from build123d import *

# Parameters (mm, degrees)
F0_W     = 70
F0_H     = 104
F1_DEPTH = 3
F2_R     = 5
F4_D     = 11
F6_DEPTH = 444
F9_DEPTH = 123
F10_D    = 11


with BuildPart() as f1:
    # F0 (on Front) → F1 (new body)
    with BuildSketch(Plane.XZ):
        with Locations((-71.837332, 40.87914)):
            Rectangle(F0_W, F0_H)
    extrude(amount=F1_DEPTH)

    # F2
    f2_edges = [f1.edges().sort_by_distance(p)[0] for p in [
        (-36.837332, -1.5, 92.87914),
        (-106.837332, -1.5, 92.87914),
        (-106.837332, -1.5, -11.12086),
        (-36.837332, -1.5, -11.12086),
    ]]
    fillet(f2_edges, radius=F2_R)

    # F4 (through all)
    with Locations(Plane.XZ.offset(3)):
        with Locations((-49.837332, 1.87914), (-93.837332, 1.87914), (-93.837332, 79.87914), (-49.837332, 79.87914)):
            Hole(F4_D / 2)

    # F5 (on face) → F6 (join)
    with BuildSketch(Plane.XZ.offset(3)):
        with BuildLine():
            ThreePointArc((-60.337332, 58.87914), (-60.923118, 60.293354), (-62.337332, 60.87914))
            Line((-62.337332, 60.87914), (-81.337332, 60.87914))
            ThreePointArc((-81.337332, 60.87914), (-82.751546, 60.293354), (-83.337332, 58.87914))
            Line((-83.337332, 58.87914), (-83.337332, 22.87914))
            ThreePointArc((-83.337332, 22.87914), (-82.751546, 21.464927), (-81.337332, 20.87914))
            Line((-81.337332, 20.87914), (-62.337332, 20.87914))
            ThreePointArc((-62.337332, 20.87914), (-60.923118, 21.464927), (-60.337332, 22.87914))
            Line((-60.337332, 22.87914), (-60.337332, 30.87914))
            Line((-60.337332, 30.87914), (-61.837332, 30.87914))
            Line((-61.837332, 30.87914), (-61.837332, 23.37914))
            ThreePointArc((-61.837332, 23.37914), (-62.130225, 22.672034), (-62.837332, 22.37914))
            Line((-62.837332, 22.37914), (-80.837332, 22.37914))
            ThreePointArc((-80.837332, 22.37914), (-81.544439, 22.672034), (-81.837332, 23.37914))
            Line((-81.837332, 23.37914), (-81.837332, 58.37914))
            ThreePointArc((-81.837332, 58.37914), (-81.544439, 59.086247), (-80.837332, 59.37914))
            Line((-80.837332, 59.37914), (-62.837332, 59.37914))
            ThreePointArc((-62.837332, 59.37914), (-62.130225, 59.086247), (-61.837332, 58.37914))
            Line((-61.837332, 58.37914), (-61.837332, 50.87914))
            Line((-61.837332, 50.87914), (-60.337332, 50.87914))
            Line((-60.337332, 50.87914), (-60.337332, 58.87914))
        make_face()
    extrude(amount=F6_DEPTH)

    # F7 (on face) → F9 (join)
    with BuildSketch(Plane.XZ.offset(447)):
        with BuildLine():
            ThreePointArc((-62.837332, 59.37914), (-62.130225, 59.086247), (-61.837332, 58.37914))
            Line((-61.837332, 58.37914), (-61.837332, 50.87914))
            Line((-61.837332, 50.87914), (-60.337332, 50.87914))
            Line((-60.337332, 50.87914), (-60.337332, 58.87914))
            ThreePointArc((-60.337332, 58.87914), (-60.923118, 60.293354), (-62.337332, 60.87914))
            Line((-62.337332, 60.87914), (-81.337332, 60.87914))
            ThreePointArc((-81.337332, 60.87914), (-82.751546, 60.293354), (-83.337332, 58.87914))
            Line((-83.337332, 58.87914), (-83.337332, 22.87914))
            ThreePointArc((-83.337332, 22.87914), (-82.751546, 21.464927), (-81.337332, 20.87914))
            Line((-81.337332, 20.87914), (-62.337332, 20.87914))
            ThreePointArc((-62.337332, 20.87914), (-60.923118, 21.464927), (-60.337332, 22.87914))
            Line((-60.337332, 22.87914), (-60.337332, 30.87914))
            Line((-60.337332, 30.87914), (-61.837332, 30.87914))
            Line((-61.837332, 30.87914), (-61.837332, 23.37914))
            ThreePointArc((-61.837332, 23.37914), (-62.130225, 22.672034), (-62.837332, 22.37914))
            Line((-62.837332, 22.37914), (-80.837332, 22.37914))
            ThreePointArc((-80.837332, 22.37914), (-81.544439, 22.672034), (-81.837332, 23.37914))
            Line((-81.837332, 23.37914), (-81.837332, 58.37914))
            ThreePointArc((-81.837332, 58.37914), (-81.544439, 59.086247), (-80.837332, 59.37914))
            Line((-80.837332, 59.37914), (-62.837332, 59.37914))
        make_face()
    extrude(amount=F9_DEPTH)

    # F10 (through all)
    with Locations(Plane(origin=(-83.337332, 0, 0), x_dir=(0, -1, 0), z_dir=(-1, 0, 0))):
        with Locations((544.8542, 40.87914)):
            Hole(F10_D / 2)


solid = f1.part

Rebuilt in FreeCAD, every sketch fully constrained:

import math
import FreeCAD as App
import Part
import Sketcher
from FreeCAD import Vector
Q = App.Units.Quantity


def edges_at(feature, points):
    """Names of the edges that pass closest to the given points."""
    edges = feature.Shape.Edges
    near = lambda p: min(range(len(edges)), key=lambda i: edges[i].distToShape(Part.Vertex(*p))[0])
    return sorted({f"Edge{near(p) + 1}" for p in points})

doc = App.newDocument("Part")
params = doc.addObject("Spreadsheet::Sheet", "Params")
for row, (alias, value) in enumerate([
    ("sketch1_width", "70 mm"),
    ("sketch1_height", "104 mm"),
    ("pad1_length", "3 mm"),
    ("fillet_radius", "5 mm"),
    ("sketch2_diameter", "11 mm"),
    ("hole_diameter", "11 mm"),
    ("sketch3_radius", "1.999999 mm"),
    ("sketch3_radius2", "1.000001 mm"),
    ("sketch3_width", "19 mm"),
    ("sketch3_width2", "18 mm"),
    ("sketch3_height", "36 mm"),
    ("pad2_length", "444 mm"),
    ("sketch4_radius", "0.999999 mm"),
    ("sketch4_radius2", "1.999999 mm"),
    ("sketch4_width", "19 mm"),
    ("sketch4_width2", "18 mm"),
    ("sketch4_height", "8 mm"),
    ("pad3_length", "123 mm"),
    ("sketch5_diameter", "11 mm"),
    ("hole2_diameter", "11 mm"),
], start=1):
    params.set(f"A{row}", alias)
    params.set(f"B{row}", "=" + value)
    params.setAlias(f"B{row}", alias)

body = doc.addObject("PartDesign::Body", "Body")

# Sketch on XZ plane
sketch1 = body.newObject("Sketcher::SketchObject", "Sketch")
sketch1.AttachmentSupport = (doc.getObject("XZ_Plane"), [""])
sketch1.MapMode = "FlatFace"
sketch1.addGeometry(Part.LineSegment(Vector(-107, 93, 0), Vector(-107, -11, 0)), False)
sketch1.addGeometry(Part.LineSegment(Vector(-107, -11, 0), Vector(-37, -11, 0)), False)
sketch1.addGeometry(Part.LineSegment(Vector(-37, -11, 0), Vector(-37, 93, 0)), False)
sketch1.addGeometry(Part.LineSegment(Vector(-37, 93, 0), Vector(-107, 93, 0)), False)
sketch1.addConstraint(Sketcher.Constraint("Coincident", 0, 2, 1, 1))
sketch1.addConstraint(Sketcher.Constraint("Coincident", 1, 2, 2, 1))
sketch1.addConstraint(Sketcher.Constraint("Coincident", 2, 2, 3, 1))
sketch1.addConstraint(Sketcher.Constraint("Coincident", 3, 2, 0, 1))
sketch1.addConstraint(Sketcher.Constraint("Vertical", 0))
sketch1.addConstraint(Sketcher.Constraint("Horizontal", 1))
sketch1.addConstraint(Sketcher.Constraint("Vertical", 2))
sketch1.addConstraint(Sketcher.Constraint("Horizontal", 3))
sketch1.addConstraint(Sketcher.Constraint("DistanceX", 1, 1, 1, 2, Q("70 mm")))
sketch1.addConstraint(Sketcher.Constraint("DistanceY", 0, 2, 0, 1, Q("104 mm")))
sketch1.addConstraint(Sketcher.Constraint("DistanceY", 0, 2, -1, 1, Q("11.12086 mm")))
sketch1.addConstraint(Sketcher.Constraint("DistanceX", 0, 2, -1, 1, Q("106.837332 mm")))
sketch1.setExpression("Constraints[8]", "Params.sketch1_width")
sketch1.setExpression("Constraints[9]", "Params.sketch1_height")
pad1 = body.newObject("PartDesign::Pad", "Pad")
pad1.Profile = sketch1
pad1.setExpression("Length", "Params.pad1_length")
doc.recompute()

fillet = body.newObject("PartDesign::Fillet", "Fillet")
fillet.Base = (pad1, edges_at(pad1, [
    (-36.837, -1.5, 92.879),
    (-106.837, -1.5, 92.879),
    (-106.837, -1.5, -11.121),
    (-36.837, -1.5, -11.121),
]))
fillet.setExpression("Radius", "Params.fillet_radius")

# Sketch on XZ plane
sketch2 = body.newObject("Sketcher::SketchObject", "Sketch001")
sketch2.AttachmentSupport = (doc.getObject("XZ_Plane"), [""])
sketch2.MapMode = "FlatFace"
sketch2.AttachmentOffset = App.Placement(Vector(0, 0, 3), App.Rotation())
sketch2.addGeometry(Part.Circle(Vector(-50, 2, 0), Vector(0, 0, 1), 6), False)
sketch2.addGeometry(Part.Circle(Vector(-94, 2, 0), Vector(0, 0, 1), 6), False)
sketch2.addGeometry(Part.Circle(Vector(-94, 80, 0), Vector(0, 0, 1), 6), False)
sketch2.addGeometry(Part.Circle(Vector(-50, 80, 0), Vector(0, 0, 1), 6), False)
sketch2.addConstraint(Sketcher.Constraint("Equal", 0, 1))
sketch2.addConstraint(Sketcher.Constraint("Equal", 1, 2))
sketch2.addConstraint(Sketcher.Constraint("Equal", 2, 3))
sketch2.addConstraint(Sketcher.Constraint("Horizontal", 0, 3, 1, 3))
sketch2.addConstraint(Sketcher.Constraint("Horizontal", 2, 3, 3, 3))
sketch2.addConstraint(Sketcher.Constraint("Vertical", 1, 3, 2, 3))
sketch2.addConstraint(Sketcher.Constraint("Vertical", 0, 3, 3, 3))
sketch2.addConstraint(Sketcher.Constraint("Diameter", 0, Q("11 mm")))
sketch2.addConstraint(Sketcher.Constraint("DistanceX", 1, 3, 0, 3, Q("44 mm")))
sketch2.addConstraint(Sketcher.Constraint("DistanceY", 1, 3, 2, 3, Q("78 mm")))
sketch2.addConstraint(Sketcher.Constraint("DistanceY", -1, 1, 0, 3, Q("1.87914 mm")))
sketch2.addConstraint(Sketcher.Constraint("DistanceX", 0, 3, -1, 1, Q("49.837332 mm")))
sketch2.setExpression("Constraints[7]", "Params.sketch2_diameter")
doc.recompute()
hole = body.newObject("PartDesign::Hole", "Hole")
hole.Profile = sketch2
hole.ThreadType = "None"
hole.setExpression("Diameter", "Params.hole_diameter")
hole.DepthType = "ThroughAll"

# Sketch on XZ plane
sketch3 = body.newObject("Sketcher::SketchObject", "Sketch002")
sketch3.AttachmentSupport = (doc.getObject("XZ_Plane"), [""])
sketch3.MapMode = "FlatFace"
sketch3.AttachmentOffset = App.Placement(Vector(0, 0, 3), App.Rotation())
sketch3.addGeometry(Part.ArcOfCircle(Part.Circle(Vector(-62.3, 58.9, 0), Vector(0, 0, 1), 2), math.radians(0), math.radians(90)), False)
sketch3.addGeometry(Part.LineSegment(Vector(-62.3, 60.9, 0), Vector(-81.3, 60.9, 0)), False)
sketch3.addGeometry(Part.ArcOfCircle(Part.Circle(Vector(-81.3, 58.9, 0), Vector(0, 0, 1), 2), math.radians(90), math.radians(180)), False)
sketch3.addGeometry(Part.LineSegment(Vector(-83.3, 58.9, 0), Vector(-83.3, 22.9, 0)), False)
sketch3.addGeometry(Part.ArcOfCircle(Part.Circle(Vector(-81.3, 22.9, 0), Vector(0, 0, 1), 2), math.radians(-180), math.radians(-90)), False)
sketch3.addGeometry(Part.LineSegment(Vector(-81.3, 20.9, 0), Vector(-62.3, 20.9, 0)), False)
sketch3.addGeometry(Part.ArcOfCircle(Part.Circle(Vector(-62.3, 22.9, 0), Vector(0, 0, 1), 2), math.radians(-90), math.radians(0)), False)
sketch3.addGeometry(Part.LineSegment(Vector(-60.3, 22.9, 0), Vector(-60.3, 30.9, 0)), False)
sketch3.addGeometry(Part.LineSegment(Vector(-60.3, 30.9, 0), Vector(-61.8, 30.9, 0)), False)
sketch3.addGeometry(Part.LineSegment(Vector(-61.8, 30.9, 0), Vector(-61.8, 23.4, 0)), False)
sketch3.addGeometry(Part.ArcOfCircle(Part.Circle(Vector(-62.8, 23.4, 0), Vector(0, 0, 1), 1), math.radians(-90), math.radians(0)), False)
sketch3.addGeometry(Part.LineSegment(Vector(-62.8, 22.4, 0), Vector(-80.8, 22.4, 0)), False)
sketch3.addGeometry(Part.ArcOfCircle(Part.Circle(Vector(-80.8, 23.4, 0), Vector(0, 0, 1), 1), math.radians(-180), math.radians(-90)), False)
sketch3.addGeometry(Part.LineSegment(Vector(-81.8, 23.4, 0), Vector(-81.8, 58.4, 0)), False)
sketch3.addGeometry(Part.ArcOfCircle(Part.Circle(Vector(-80.8, 58.4, 0), Vector(0, 0, 1), 1), math.radians(90), math.radians(180)), False)
sketch3.addGeometry(Part.LineSegment(Vector(-80.8, 59.4, 0), Vector(-62.8, 59.4, 0)), False)
sketch3.addGeometry(Part.ArcOfCircle(Part.Circle(Vector(-62.8, 58.4, 0), Vector(0, 0, 1), 1), math.radians(0), math.radians(90)), False)
sketch3.addGeometry(Part.LineSegment(Vector(-61.8, 58.4, 0), Vector(-61.8, 50.9, 0)), False)
sketch3.addGeometry(Part.LineSegment(Vector(-61.8, 50.9, 0), Vector(-60.3, 50.9, 0)), False)
sketch3.addGeometry(Part.LineSegment(Vector(-60.3, 50.9, 0), Vector(-60.3, 58.9, 0)), False)
sketch3.addConstraint(Sketcher.Constraint("Tangent", 0, 2, 1, 1))
sketch3.addConstraint(Sketcher.Constraint("Tangent", 1, 2, 2, 1))
sketch3.addConstraint(Sketcher.Constraint("Tangent", 2, 2, 3, 1))
sketch3.addConstraint(Sketcher.Constraint("Tangent", 3, 2, 4, 1))
sketch3.addConstraint(Sketcher.Constraint("Tangent", 4, 2, 5, 1))
sketch3.addConstraint(Sketcher.Constraint("Tangent", 5, 2, 6, 1))
sketch3.addConstraint(Sketcher.Constraint("Tangent", 6, 2, 7, 1))
sketch3.addConstraint(Sketcher.Constraint("Coincident", 7, 2, 8, 1))
sketch3.addConstraint(Sketcher.Constraint("Coincident", 8, 2, 9, 1))
sketch3.addConstraint(Sketcher.Constraint("Tangent", 9, 2, 10, 2))
sketch3.addConstraint(Sketcher.Constraint("Tangent", 10, 1, 11, 1))
sketch3.addConstraint(Sketcher.Constraint("Tangent", 11, 2, 12, 2))
sketch3.addConstraint(Sketcher.Constraint("Tangent", 12, 1, 13, 1))
sketch3.addConstraint(Sketcher.Constraint("Tangent", 13, 2, 14, 2))
sketch3.addConstraint(Sketcher.Constraint("Tangent", 14, 1, 15, 1))
sketch3.addConstraint(Sketcher.Constraint("Tangent", 15, 2, 16, 2))
sketch3.addConstraint(Sketcher.Constraint("Tangent", 16, 1, 17, 1))
sketch3.addConstraint(Sketcher.Constraint("Coincident", 17, 2, 18, 1))
sketch3.addConstraint(Sketcher.Constraint("Coincident", 18, 2, 19, 1))
sketch3.addConstraint(Sketcher.Constraint("Tangent", 19, 2, 0, 1))
sketch3.addConstraint(Sketcher.Constraint("Horizontal", 1))
sketch3.addConstraint(Sketcher.Constraint("Vertical", 3))
sketch3.addConstraint(Sketcher.Constraint("Horizontal", 5))
sketch3.addConstraint(Sketcher.Constraint("Vertical", 7))
sketch3.addConstraint(Sketcher.Constraint("Horizontal", 8))
sketch3.addConstraint(Sketcher.Constraint("Vertical", 9))
sketch3.addConstraint(Sketcher.Constraint("Horizontal", 11))
sketch3.addConstraint(Sketcher.Constraint("Vertical", 13))
sketch3.addConstraint(Sketcher.Constraint("Horizontal", 15))
sketch3.addConstraint(Sketcher.Constraint("Vertical", 17))
sketch3.addConstraint(Sketcher.Constraint("Horizontal", 18))
sketch3.addConstraint(Sketcher.Constraint("Vertical", 19))
sketch3.addConstraint(Sketcher.Constraint("Equal", 0, 2))
sketch3.addConstraint(Sketcher.Constraint("Equal", 2, 4))
sketch3.addConstraint(Sketcher.Constraint("Equal", 4, 6))
sketch3.addConstraint(Sketcher.Constraint("Equal", 10, 12))
sketch3.addConstraint(Sketcher.Constraint("Equal", 12, 14))
sketch3.addConstraint(Sketcher.Constraint("Equal", 14, 16))
sketch3.addConstraint(Sketcher.Constraint("Vertical", 0, 3, 6, 3))
sketch3.addConstraint(Sketcher.Constraint("Vertical", 10, 3, 16, 3))
sketch3.addConstraint(Sketcher.Constraint("Equal", 9, 17))
sketch3.addConstraint(Sketcher.Constraint("Equal", 7, 19))
sketch3.addConstraint(Sketcher.Constraint("Radius", 0, Q("1.999999 mm")))
sketch3.addConstraint(Sketcher.Constraint("Radius", 10, Q("1.000001 mm")))
sketch3.addConstraint(Sketcher.Constraint("DistanceX", 1, 2, 1, 1, Q("19 mm")))
sketch3.addConstraint(Sketcher.Constraint("DistanceX", 11, 2, 11, 1, Q("18 mm")))
sketch3.addConstraint(Sketcher.Constraint("DistanceY", 3, 2, 3, 1, Q("36 mm")))
sketch3.addConstraint(Sketcher.Constraint("DistanceY", 7, 1, 7, 2, Q("8 mm")))
sketch3.addConstraint(Sketcher.Constraint("DistanceY", 13, 1, 13, 2, Q("35 mm")))
sketch3.addConstraint(Sketcher.Constraint("DistanceX", 8, 2, 8, 1, Q("1.5 mm")))
sketch3.addConstraint(Sketcher.Constraint("DistanceX", 0, 3, -1, 1, Q("62.337331 mm")))
sketch3.addConstraint(Sketcher.Constraint("DistanceY", -1, 1, 0, 3, Q("58.879141 mm")))
sketch3.setExpression("Constraints[42]", "Params.sketch3_radius")
sketch3.setExpression("Constraints[43]", "Params.sketch3_radius2")
sketch3.setExpression("Constraints[44]", "Params.sketch3_width")
sketch3.setExpression("Constraints[45]", "Params.sketch3_width2")
sketch3.setExpression("Constraints[46]", "Params.sketch3_height")
pad2 = body.newObject("PartDesign::Pad", "Pad001")
pad2.Profile = sketch3
pad2.setExpression("Length", "Params.pad2_length")

# Sketch on XZ plane
sketch4 = body.newObject("Sketcher::SketchObject", "Sketch003")
sketch4.AttachmentSupport = (doc.getObject("XZ_Plane"), [""])
sketch4.MapMode = "FlatFace"
sketch4.AttachmentOffset = App.Placement(Vector(0, 0, 447), App.Rotation())
sketch4.addGeometry(Part.ArcOfCircle(Part.Circle(Vector(-62.8, 58.4, 0), Vector(0, 0, 1), 1), math.radians(0), math.radians(90)), False)
sketch4.addGeometry(Part.LineSegment(Vector(-61.8, 58.4, 0), Vector(-61.8, 50.9, 0)), False)
sketch4.addGeometry(Part.LineSegment(Vector(-61.8, 50.9, 0), Vector(-60.3, 50.9, 0)), False)
sketch4.addGeometry(Part.LineSegment(Vector(-60.3, 50.9, 0), Vector(-60.3, 58.9, 0)), False)
sketch4.addGeometry(Part.ArcOfCircle(Part.Circle(Vector(-62.3, 58.9, 0), Vector(0, 0, 1), 2), math.radians(0), math.radians(90)), False)
sketch4.addGeometry(Part.LineSegment(Vector(-62.3, 60.9, 0), Vector(-81.3, 60.9, 0)), False)
sketch4.addGeometry(Part.ArcOfCircle(Part.Circle(Vector(-81.3, 58.9, 0), Vector(0, 0, 1), 2), math.radians(90), math.radians(180)), False)
sketch4.addGeometry(Part.LineSegment(Vector(-83.3, 58.9, 0), Vector(-83.3, 22.9, 0)), False)
sketch4.addGeometry(Part.ArcOfCircle(Part.Circle(Vector(-81.3, 22.9, 0), Vector(0, 0, 1), 2), math.radians(-180), math.radians(-90)), False)
sketch4.addGeometry(Part.LineSegment(Vector(-81.3, 20.9, 0), Vector(-62.3, 20.9, 0)), False)
sketch4.addGeometry(Part.ArcOfCircle(Part.Circle(Vector(-62.3, 22.9, 0), Vector(0, 0, 1), 2), math.radians(-90), math.radians(0)), False)
sketch4.addGeometry(Part.LineSegment(Vector(-60.3, 22.9, 0), Vector(-60.3, 30.9, 0)), False)
sketch4.addGeometry(Part.LineSegment(Vector(-60.3, 30.9, 0), Vector(-61.8, 30.9, 0)), False)
sketch4.addGeometry(Part.LineSegment(Vector(-61.8, 30.9, 0), Vector(-61.8, 23.4, 0)), False)
sketch4.addGeometry(Part.ArcOfCircle(Part.Circle(Vector(-62.8, 23.4, 0), Vector(0, 0, 1), 1), math.radians(-90), math.radians(0)), False)
sketch4.addGeometry(Part.LineSegment(Vector(-62.8, 22.4, 0), Vector(-80.8, 22.4, 0)), False)
sketch4.addGeometry(Part.ArcOfCircle(Part.Circle(Vector(-80.8, 23.4, 0), Vector(0, 0, 1), 1), math.radians(-180), math.radians(-90)), False)
sketch4.addGeometry(Part.LineSegment(Vector(-81.8, 23.4, 0), Vector(-81.8, 58.4, 0)), False)
sketch4.addGeometry(Part.ArcOfCircle(Part.Circle(Vector(-80.8, 58.4, 0), Vector(0, 0, 1), 1), math.radians(90), math.radians(180)), False)
sketch4.addGeometry(Part.LineSegment(Vector(-80.8, 59.4, 0), Vector(-62.8, 59.4, 0)), False)
sketch4.addConstraint(Sketcher.Constraint("Tangent", 0, 1, 1, 1))
sketch4.addConstraint(Sketcher.Constraint("Coincident", 1, 2, 2, 1))
sketch4.addConstraint(Sketcher.Constraint("Coincident", 2, 2, 3, 1))
sketch4.addConstraint(Sketcher.Constraint("Tangent", 3, 2, 4, 1))
sketch4.addConstraint(Sketcher.Constraint("Tangent", 4, 2, 5, 1))
sketch4.addConstraint(Sketcher.Constraint("Tangent", 5, 2, 6, 1))
sketch4.addConstraint(Sketcher.Constraint("Tangent", 6, 2, 7, 1))
sketch4.addConstraint(Sketcher.Constraint("Tangent", 7, 2, 8, 1))
sketch4.addConstraint(Sketcher.Constraint("Tangent", 8, 2, 9, 1))
sketch4.addConstraint(Sketcher.Constraint("Tangent", 9, 2, 10, 1))
sketch4.addConstraint(Sketcher.Constraint("Tangent", 10, 2, 11, 1))
sketch4.addConstraint(Sketcher.Constraint("Coincident", 11, 2, 12, 1))
sketch4.addConstraint(Sketcher.Constraint("Coincident", 12, 2, 13, 1))
sketch4.addConstraint(Sketcher.Constraint("Tangent", 13, 2, 14, 2))
sketch4.addConstraint(Sketcher.Constraint("Tangent", 14, 1, 15, 1))
sketch4.addConstraint(Sketcher.Constraint("Tangent", 15, 2, 16, 2))
sketch4.addConstraint(Sketcher.Constraint("Tangent", 16, 1, 17, 1))
sketch4.addConstraint(Sketcher.Constraint("Tangent", 17, 2, 18, 2))
sketch4.addConstraint(Sketcher.Constraint("Tangent", 18, 1, 19, 1))
sketch4.addConstraint(Sketcher.Constraint("Tangent", 19, 2, 0, 2))
sketch4.addConstraint(Sketcher.Constraint("Vertical", 1))
sketch4.addConstraint(Sketcher.Constraint("Horizontal", 2))
sketch4.addConstraint(Sketcher.Constraint("Vertical", 3))
sketch4.addConstraint(Sketcher.Constraint("Horizontal", 5))
sketch4.addConstraint(Sketcher.Constraint("Vertical", 7))
sketch4.addConstraint(Sketcher.Constraint("Horizontal", 9))
sketch4.addConstraint(Sketcher.Constraint("Vertical", 11))
sketch4.addConstraint(Sketcher.Constraint("Horizontal", 12))
sketch4.addConstraint(Sketcher.Constraint("Vertical", 13))
sketch4.addConstraint(Sketcher.Constraint("Horizontal", 15))
sketch4.addConstraint(Sketcher.Constraint("Vertical", 17))
sketch4.addConstraint(Sketcher.Constraint("Horizontal", 19))
sketch4.addConstraint(Sketcher.Constraint("Equal", 4, 6))
sketch4.addConstraint(Sketcher.Constraint("Equal", 6, 8))
sketch4.addConstraint(Sketcher.Constraint("Equal", 8, 10))
sketch4.addConstraint(Sketcher.Constraint("Equal", 0, 14))
sketch4.addConstraint(Sketcher.Constraint("Equal", 14, 16))
sketch4.addConstraint(Sketcher.Constraint("Equal", 16, 18))
sketch4.addConstraint(Sketcher.Constraint("Vertical", 4, 3, 10, 3))
sketch4.addConstraint(Sketcher.Constraint("Vertical", 0, 3, 14, 3))
sketch4.addConstraint(Sketcher.Constraint("Equal", 3, 11))
sketch4.addConstraint(Sketcher.Constraint("Equal", 1, 13))
sketch4.addConstraint(Sketcher.Constraint("Radius", 0, Q("0.999999 mm")))
sketch4.addConstraint(Sketcher.Constraint("Radius", 4, Q("1.999999 mm")))
sketch4.addConstraint(Sketcher.Constraint("DistanceX", 5, 2, 5, 1, Q("19 mm")))
sketch4.addConstraint(Sketcher.Constraint("DistanceX", 15, 2, 15, 1, Q("18 mm")))
sketch4.addConstraint(Sketcher.Constraint("DistanceY", 3, 1, 3, 2, Q("8 mm")))
sketch4.addConstraint(Sketcher.Constraint("DistanceY", 7, 2, 7, 1, Q("36 mm")))
sketch4.addConstraint(Sketcher.Constraint("DistanceY", 17, 1, 17, 2, Q("35 mm")))
sketch4.addConstraint(Sketcher.Constraint("DistanceX", 2, 1, 2, 2, Q("1.5 mm")))
sketch4.addConstraint(Sketcher.Constraint("DistanceX", 0, 3, -1, 1, Q("62.837331 mm")))
sketch4.addConstraint(Sketcher.Constraint("DistanceY", -1, 1, 0, 3, Q("58.379141 mm")))
sketch4.setExpression("Constraints[42]", "Params.sketch4_radius")
sketch4.setExpression("Constraints[43]", "Params.sketch4_radius2")
sketch4.setExpression("Constraints[44]", "Params.sketch4_width")
sketch4.setExpression("Constraints[45]", "Params.sketch4_width2")
sketch4.setExpression("Constraints[46]", "Params.sketch4_height")
pad3 = body.newObject("PartDesign::Pad", "Pad002")
pad3.Profile = sketch4
pad3.setExpression("Length", "Params.pad3_length")

# Sketch on YZ plane
sketch5 = body.newObject("Sketcher::SketchObject", "Sketch004")
sketch5.AttachmentSupport = (doc.getObject("YZ_Plane"), [""])
sketch5.MapMode = "FlatFace"
sketch5.AttachmentOffset = App.Placement(Vector(0, 0, -83.337332), App.Rotation())
sketch5.addGeometry(Part.Circle(Vector(-545, 41, 0), Vector(0, 0, 1), 6), False)
sketch5.addConstraint(Sketcher.Constraint("Diameter", 0, Q("11 mm")))
sketch5.addConstraint(Sketcher.Constraint("DistanceX", 0, 3, -1, 1, Q("544.8542 mm")))
sketch5.addConstraint(Sketcher.Constraint("DistanceY", -1, 1, 0, 3, Q("40.87914 mm")))
sketch5.setExpression("Constraints[0]", "Params.sketch5_diameter")
doc.recompute()
hole2 = body.newObject("PartDesign::Hole", "Hole001")
hole2.Profile = sketch5
hole2.ThreadType = "None"
hole2.setExpression("Diameter", "Params.hole2_diameter")
hole2.DepthType = "ThroughAll"
hole2.Reversed = True

doc.recompute()
